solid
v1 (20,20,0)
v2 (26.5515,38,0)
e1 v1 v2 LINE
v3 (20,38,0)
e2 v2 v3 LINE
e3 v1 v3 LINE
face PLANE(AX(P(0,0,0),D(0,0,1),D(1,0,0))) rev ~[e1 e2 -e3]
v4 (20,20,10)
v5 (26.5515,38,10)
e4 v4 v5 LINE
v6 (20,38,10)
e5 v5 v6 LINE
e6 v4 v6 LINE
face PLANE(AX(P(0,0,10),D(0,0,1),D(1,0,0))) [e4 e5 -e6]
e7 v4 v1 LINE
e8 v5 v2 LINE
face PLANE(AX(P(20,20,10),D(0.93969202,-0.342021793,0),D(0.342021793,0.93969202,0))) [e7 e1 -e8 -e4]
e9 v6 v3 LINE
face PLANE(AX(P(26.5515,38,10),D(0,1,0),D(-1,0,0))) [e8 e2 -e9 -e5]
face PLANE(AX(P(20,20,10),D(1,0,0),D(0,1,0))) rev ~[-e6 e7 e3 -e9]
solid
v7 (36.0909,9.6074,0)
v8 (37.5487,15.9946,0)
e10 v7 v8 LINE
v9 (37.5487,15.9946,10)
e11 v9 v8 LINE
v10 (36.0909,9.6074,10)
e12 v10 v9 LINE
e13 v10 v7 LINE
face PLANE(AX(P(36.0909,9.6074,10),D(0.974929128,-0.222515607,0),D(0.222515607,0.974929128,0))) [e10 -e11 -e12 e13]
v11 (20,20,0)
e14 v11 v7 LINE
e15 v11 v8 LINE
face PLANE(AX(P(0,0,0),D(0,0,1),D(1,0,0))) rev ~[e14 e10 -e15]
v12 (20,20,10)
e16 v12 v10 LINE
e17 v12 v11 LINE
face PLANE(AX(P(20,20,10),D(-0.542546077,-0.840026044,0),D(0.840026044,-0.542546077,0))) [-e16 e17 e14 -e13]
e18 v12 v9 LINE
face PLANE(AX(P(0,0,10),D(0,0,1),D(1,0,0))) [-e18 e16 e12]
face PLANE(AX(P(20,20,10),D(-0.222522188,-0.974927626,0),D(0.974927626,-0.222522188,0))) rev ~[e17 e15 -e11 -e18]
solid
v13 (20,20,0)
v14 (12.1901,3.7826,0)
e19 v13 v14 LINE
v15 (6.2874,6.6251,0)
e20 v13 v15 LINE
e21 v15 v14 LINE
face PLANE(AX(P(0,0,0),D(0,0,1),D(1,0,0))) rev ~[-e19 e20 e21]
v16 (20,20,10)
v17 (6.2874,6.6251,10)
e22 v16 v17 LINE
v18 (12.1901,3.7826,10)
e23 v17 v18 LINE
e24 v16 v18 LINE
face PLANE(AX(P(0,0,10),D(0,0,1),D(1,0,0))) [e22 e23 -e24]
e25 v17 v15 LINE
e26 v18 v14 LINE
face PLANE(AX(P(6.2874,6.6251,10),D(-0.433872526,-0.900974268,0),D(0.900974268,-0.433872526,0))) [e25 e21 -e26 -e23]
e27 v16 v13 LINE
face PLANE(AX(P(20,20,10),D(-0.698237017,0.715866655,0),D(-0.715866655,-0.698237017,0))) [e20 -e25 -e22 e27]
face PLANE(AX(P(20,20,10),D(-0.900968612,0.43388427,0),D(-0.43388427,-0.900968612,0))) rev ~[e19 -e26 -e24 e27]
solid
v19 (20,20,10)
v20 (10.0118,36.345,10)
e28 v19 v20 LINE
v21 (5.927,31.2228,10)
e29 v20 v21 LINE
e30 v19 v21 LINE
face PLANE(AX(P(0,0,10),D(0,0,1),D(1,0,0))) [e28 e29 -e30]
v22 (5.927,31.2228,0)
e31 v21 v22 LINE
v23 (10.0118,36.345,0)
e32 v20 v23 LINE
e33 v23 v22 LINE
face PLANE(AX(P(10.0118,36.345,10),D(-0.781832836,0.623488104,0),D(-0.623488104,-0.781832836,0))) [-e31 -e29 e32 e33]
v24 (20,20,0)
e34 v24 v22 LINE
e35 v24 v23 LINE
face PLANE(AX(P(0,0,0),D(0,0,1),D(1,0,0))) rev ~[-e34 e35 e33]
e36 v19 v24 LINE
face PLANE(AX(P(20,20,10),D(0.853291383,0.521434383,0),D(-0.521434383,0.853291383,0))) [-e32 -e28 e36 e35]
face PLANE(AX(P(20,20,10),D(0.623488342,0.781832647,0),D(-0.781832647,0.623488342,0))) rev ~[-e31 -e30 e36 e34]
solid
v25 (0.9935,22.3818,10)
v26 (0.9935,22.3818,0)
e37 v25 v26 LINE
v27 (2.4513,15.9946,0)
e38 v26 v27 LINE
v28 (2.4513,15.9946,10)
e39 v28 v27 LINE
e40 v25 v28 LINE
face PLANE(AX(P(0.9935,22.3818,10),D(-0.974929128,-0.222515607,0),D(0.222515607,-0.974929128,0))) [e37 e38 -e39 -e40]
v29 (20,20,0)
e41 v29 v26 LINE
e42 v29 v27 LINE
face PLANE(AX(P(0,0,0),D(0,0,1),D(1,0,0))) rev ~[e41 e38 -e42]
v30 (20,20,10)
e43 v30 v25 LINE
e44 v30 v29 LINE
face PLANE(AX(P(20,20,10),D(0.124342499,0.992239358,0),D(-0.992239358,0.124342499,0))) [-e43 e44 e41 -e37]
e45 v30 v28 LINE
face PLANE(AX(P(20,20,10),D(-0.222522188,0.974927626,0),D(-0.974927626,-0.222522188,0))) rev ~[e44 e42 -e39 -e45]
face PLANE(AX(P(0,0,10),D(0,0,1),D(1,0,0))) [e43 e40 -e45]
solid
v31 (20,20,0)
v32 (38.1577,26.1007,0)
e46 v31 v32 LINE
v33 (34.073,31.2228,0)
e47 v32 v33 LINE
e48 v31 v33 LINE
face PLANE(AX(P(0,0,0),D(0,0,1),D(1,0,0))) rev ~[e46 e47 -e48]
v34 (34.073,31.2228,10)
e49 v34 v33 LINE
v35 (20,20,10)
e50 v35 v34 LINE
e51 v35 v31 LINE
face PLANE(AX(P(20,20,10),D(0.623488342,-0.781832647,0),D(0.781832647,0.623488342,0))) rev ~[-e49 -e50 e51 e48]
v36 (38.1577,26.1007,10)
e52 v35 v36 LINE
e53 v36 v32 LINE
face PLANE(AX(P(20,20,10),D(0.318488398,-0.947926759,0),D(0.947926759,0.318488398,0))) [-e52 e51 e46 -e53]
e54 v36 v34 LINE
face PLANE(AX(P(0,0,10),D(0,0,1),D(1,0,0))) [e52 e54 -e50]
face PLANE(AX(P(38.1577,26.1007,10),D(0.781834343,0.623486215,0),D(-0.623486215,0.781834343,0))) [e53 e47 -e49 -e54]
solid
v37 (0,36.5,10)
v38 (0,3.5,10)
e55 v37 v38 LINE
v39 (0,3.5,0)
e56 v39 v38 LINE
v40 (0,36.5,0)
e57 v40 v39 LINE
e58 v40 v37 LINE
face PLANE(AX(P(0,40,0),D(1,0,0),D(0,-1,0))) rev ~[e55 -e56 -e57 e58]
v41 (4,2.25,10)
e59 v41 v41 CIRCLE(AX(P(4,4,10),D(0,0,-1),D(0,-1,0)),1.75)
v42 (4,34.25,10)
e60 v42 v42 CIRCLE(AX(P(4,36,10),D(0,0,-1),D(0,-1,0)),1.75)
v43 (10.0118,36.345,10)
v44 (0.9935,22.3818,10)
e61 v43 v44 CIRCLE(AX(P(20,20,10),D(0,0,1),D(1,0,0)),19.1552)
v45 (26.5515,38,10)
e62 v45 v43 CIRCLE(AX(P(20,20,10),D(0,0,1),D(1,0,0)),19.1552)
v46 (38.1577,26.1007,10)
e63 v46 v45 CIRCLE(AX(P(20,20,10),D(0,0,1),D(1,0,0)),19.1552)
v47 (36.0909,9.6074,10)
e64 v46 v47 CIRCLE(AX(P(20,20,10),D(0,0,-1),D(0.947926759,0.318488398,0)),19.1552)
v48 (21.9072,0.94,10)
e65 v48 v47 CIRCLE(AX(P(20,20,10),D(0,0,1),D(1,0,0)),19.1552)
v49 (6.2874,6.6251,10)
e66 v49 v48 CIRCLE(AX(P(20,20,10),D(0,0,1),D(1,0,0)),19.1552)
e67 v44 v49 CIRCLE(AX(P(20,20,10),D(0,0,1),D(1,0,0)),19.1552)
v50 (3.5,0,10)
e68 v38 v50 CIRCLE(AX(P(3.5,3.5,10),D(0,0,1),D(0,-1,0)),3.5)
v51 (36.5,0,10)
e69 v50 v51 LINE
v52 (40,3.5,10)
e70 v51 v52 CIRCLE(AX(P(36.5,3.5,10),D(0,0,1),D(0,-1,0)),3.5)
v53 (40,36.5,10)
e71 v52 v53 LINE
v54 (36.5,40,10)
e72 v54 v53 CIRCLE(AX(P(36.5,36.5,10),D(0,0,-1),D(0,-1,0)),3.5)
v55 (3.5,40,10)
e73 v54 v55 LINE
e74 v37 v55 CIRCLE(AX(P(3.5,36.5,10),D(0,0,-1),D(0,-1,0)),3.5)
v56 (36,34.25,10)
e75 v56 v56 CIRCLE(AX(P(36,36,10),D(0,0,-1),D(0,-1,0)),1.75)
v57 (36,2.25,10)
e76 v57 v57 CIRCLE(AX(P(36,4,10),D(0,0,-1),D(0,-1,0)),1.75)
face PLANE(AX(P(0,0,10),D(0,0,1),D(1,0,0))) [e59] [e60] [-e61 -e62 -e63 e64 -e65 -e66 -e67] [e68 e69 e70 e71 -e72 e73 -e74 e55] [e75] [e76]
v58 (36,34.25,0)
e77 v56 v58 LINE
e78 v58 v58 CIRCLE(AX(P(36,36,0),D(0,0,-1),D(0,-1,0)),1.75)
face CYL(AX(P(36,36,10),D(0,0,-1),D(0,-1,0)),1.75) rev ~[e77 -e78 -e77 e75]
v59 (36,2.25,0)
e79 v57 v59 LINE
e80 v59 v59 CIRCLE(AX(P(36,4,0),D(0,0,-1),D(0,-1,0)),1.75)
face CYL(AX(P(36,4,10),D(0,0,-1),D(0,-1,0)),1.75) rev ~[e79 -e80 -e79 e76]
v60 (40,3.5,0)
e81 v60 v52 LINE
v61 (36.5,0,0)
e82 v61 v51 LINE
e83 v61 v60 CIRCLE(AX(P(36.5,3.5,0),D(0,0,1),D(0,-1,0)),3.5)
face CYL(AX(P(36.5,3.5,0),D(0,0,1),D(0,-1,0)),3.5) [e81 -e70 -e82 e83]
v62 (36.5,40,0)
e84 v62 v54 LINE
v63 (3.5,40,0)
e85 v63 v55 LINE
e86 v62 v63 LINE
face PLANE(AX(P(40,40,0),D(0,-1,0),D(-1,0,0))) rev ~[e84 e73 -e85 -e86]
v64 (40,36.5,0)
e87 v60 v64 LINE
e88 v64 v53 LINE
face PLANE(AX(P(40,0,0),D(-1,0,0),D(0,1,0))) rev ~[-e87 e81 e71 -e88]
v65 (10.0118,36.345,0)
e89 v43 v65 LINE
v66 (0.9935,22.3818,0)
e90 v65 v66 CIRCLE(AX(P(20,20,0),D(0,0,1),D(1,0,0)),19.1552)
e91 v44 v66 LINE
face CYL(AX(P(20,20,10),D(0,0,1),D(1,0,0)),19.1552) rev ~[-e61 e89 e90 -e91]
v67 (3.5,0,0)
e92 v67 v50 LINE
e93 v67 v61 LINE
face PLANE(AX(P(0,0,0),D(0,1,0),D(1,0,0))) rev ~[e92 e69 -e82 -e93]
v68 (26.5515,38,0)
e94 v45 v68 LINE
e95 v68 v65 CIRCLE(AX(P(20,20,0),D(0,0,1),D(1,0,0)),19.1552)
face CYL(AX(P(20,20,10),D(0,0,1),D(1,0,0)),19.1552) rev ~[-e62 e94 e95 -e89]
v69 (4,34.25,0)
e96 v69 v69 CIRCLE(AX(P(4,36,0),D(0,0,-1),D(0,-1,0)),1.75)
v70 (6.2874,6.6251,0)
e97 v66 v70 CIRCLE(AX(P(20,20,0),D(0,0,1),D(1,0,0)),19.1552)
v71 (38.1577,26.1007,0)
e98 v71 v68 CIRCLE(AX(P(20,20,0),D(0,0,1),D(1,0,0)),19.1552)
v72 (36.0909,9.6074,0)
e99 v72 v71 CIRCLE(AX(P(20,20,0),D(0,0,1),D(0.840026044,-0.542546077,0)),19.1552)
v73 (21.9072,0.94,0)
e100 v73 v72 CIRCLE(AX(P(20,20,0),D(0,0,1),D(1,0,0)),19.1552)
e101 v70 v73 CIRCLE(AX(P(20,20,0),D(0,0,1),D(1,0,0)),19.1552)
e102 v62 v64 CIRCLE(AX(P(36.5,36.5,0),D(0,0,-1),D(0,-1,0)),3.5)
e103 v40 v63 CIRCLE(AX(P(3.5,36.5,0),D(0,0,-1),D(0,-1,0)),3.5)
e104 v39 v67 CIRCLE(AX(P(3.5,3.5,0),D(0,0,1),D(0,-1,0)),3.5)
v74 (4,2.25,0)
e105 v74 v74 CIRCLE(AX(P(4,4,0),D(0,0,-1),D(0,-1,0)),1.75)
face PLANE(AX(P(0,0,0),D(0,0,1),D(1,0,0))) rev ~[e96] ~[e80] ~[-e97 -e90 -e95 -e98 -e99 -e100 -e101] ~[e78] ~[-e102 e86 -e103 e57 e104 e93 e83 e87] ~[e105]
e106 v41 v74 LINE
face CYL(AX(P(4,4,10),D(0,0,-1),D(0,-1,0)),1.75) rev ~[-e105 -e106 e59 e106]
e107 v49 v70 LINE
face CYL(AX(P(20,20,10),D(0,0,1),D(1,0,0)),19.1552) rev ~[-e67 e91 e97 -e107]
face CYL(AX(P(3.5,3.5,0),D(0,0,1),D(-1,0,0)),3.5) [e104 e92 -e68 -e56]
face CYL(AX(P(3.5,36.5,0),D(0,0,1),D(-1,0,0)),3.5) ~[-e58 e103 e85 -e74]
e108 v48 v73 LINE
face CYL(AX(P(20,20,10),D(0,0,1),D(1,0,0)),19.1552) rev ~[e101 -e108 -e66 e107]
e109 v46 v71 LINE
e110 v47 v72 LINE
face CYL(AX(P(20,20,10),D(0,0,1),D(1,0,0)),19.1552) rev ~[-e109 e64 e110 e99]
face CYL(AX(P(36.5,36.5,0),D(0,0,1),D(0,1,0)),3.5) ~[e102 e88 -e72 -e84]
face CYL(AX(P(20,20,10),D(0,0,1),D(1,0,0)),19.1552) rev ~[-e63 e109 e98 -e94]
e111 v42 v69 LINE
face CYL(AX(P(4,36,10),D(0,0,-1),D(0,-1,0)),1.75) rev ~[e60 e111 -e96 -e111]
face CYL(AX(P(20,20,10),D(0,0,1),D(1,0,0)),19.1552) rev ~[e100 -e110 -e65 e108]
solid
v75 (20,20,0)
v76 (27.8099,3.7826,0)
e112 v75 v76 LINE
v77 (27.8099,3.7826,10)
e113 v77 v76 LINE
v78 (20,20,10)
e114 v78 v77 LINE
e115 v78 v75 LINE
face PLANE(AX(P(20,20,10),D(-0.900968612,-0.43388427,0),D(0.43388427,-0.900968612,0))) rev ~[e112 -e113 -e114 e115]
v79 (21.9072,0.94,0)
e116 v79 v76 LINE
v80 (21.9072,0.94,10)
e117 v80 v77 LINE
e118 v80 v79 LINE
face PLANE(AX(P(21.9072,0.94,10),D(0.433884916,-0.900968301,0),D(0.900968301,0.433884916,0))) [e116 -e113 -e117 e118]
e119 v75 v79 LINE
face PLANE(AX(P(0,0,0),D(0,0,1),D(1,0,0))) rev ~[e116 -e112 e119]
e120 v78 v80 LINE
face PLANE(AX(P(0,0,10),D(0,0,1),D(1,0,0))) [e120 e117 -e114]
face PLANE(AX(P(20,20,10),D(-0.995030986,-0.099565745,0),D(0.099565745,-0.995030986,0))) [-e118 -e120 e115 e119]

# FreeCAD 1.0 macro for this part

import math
import FreeCAD as App
import Part
import Sketcher

V = App.Vector
Q = App.Units.Quantity


def edges_at(feature, points):
    """Names of the edges that pass closest to the given points."""
    edges = feature.Shape.Edges
    near = lambda p: min(range(len(edges)), key=lambda i: edges[i].distToShape(Part.Vertex(*p))[0])
    return sorted({f"Edge{near(p) + 1}" for p in points})

doc = App.newDocument("Part")
body = doc.addObject("PartDesign::Body", "Body")
body.AllowCompound = True

# Sketch on XY plane
sketch1 = body.newObject("Sketcher::SketchObject", "Sketch")
sketch1.AttachmentSupport = (doc.getObject("XY_Plane"), [""])
sketch1.MapMode = "FlatFace"
sketch1.addGeometry([
    Part.LineSegment(V(0, 40, 0), V(0, 0, 0)),
    Part.LineSegment(V(0, 0, 0), V(40, 0, 0)),
    Part.LineSegment(V(40, 0, 0), V(40, 40, 0)),
    Part.LineSegment(V(40, 40, 0), V(0, 40, 0)),
], False)
sketch1.addConstraint([
    Sketcher.Constraint("Coincident", 0, 2, 1, 1),
    Sketcher.Constraint("Coincident", 1, 2, 2, 1),
    Sketcher.Constraint("Coincident", 2, 2, 3, 1),
    Sketcher.Constraint("Coincident", 3, 2, 0, 1),
    Sketcher.Constraint("Vertical", 0),
    Sketcher.Constraint("Horizontal", 1),
    Sketcher.Constraint("Vertical", 2),
    Sketcher.Constraint("Horizontal", 3),
    Sketcher.Constraint("Coincident", 0, 2, -1, 1),
    Sketcher.Constraint("Equal", 3, 0),
    Sketcher.Constraint("DistanceX", 1, 1, 1, 2, Q("40 mm")),
])
pad1 = body.newObject("PartDesign::Pad", "Pad")
pad1.Profile = sketch1
pad1.Length = 10

# Sketch on XY plane
sketch2 = body.newObject("Sketcher::SketchObject", "Sketch001")
sketch2.AttachmentSupport = (doc.getObject("XY_Plane"), [""])
sketch2.MapMode = "FlatFace"
sketch2.AttachmentOffset = App.Placement(V(0, 0, 10), App.Rotation())
sketch2.addGeometry(Part.Circle(V(4, 36, 0), V(0, 0, 1), 1.8), False)
sketch2.addConstraint([
    Sketcher.Constraint("Diameter", 0, Q("3.5 mm")),
    Sketcher.Constraint("DistanceX", -1, 1, 0, 3, Q("4 mm")),
    Sketcher.Constraint("DistanceY", -1, 1, 0, 3, Q("36 mm")),
])
doc.recompute()
hole = body.newObject("PartDesign::Hole", "Hole")
hole.Profile = sketch2
hole.ThreadType = "None"
hole.Diameter = 3.5
hole.DepthType = "ThroughAll"

# Sketch on XY plane
sketch3 = body.newObject("Sketcher::SketchObject", "Sketch002")
sketch3.AttachmentSupport = (doc.getObject("XY_Plane"), [""])
sketch3.MapMode = "FlatFace"
sketch3.AttachmentOffset = App.Placement(V(0, 0, 10), App.Rotation())
sketch3.addGeometry(Part.Circle(V(4, 4, 0), V(0, 0, 1), 1.8), False)
sketch3.addConstraint([
    Sketcher.Constraint("Diameter", 0, Q("3.5 mm")),
    Sketcher.Constraint("DistanceX", -1, 1, 0, 3, Q("4 mm")),
    Sketcher.Constraint("DistanceY", -1, 1, 0, 3, Q("4 mm")),
])
doc.recompute()
hole2 = body.newObject("PartDesign::Hole", "Hole001")
hole2.Profile = sketch3
hole2.ThreadType = "None"
hole2.Diameter = 3.5
hole2.DepthType = "ThroughAll"

# Sketch on XY plane
sketch4 = body.newObject("Sketcher::SketchObject", "Sketch003")
sketch4.AttachmentSupport = (doc.getObject("XY_Plane"), [""])
sketch4.MapMode = "FlatFace"
sketch4.AttachmentOffset = App.Placement(V(0, 0, 10), App.Rotation())
sketch4.addGeometry(Part.Circle(V(36, 4, 0), V(0, 0, 1), 1.8), False)
sketch4.addConstraint([
    Sketcher.Constraint("Diameter", 0, Q("3.5 mm")),
    Sketcher.Constraint("DistanceX", -1, 1, 0, 3, Q("36 mm")),
    Sketcher.Constraint("DistanceY", -1, 1, 0, 3, Q("4 mm")),
])
doc.recompute()
hole3 = body.newObject("PartDesign::Hole", "Hole002")
hole3.Profile = sketch4
hole3.ThreadType = "None"
hole3.Diameter = 3.5
hole3.DepthType = "ThroughAll"

# Sketch on XY plane
sketch5 = body.newObject("Sketcher::SketchObject", "Sketch004")
sketch5.AttachmentSupport = (doc.getObject("XY_Plane"), [""])
sketch5.MapMode = "FlatFace"
sketch5.AttachmentOffset = App.Placement(V(0, 0, 10), App.Rotation())
sketch5.addGeometry(Part.Circle(V(36, 36, 0), V(0, 0, 1), 1.8), False)
sketch5.addConstraint([
    Sketcher.Constraint("Diameter", 0, Q("3.5 mm")),
    Sketcher.Constraint("DistanceX", -1, 1, 0, 3, Q("36 mm")),
    Sketcher.Constraint("DistanceY", -1, 1, 0, 3, Q("36 mm")),
])
doc.recompute()
hole4 = body.newObject("PartDesign::Hole", "Hole003")
hole4.Profile = sketch5
hole4.ThreadType = "None"
hole4.Diameter = 3.5
hole4.DepthType = "ThroughAll"
doc.recompute()

fillet = body.newObject("PartDesign::Fillet", "Fillet")
fillet.Base = (hole4, edges_at(hole4, [
    (40, 0, 5),
    (0, 0, 5),
    (0, 40, 5),
    (40, 40, 5),
]))
fillet.Radius = 3.5

# Sketch on XY plane
sketch6 = body.newObject("Sketcher::SketchObject", "Sketch005")
sketch6.AttachmentSupport = (doc.getObject("XY_Plane"), [""])
sketch6.MapMode = "FlatFace"
sketch6.AttachmentOffset = App.Placement(V(0, 0, 10), App.Rotation())
sketch6.addGeometry([
    Part.LineSegment(V(10, 36, 0), V(20, 20, 0)),  # 0
    Part.LineSegment(V(20, 20, 0), V(20, 38, 0)),  # 1
    Part.LineSegment(V(20, 38, 0), V(27, 38, 0)),  # 2
    Part.ArcOfCircle(Part.Circle(V(20, 20, 0), V(0, 0, 1), 19), math.radians(70), math.radians(121)),  # 3
    Part.LineSegment(V(1, 22, 0), V(20, 20, 0)),  # 4
    Part.LineSegment(V(20, 20, 0), V(6, 31, 0)),  # 5
    Part.LineSegment(V(6, 31, 0), V(10, 36, 0)),  # 6
    Part.ArcOfCircle(Part.Circle(V(20, 20, 0), V(0, 0, 1), 19), math.radians(121), math.radians(173)),  # 7
    Part.LineSegment(V(6, 7, 0), V(20, 20, 0)),  # 8
    Part.LineSegment(V(20, 20, 0), V(2, 16, 0)),  # 9
    Part.LineSegment(V(2, 16, 0), V(1, 22, 0)),  # 10
    Part.ArcOfCircle(Part.Circle(V(20, 20, 0), V(0, 0, 1), 19), math.radians(173), math.radians(224)),  # 11
    Part.LineSegment(V(22, 1, 0), V(20, 20, 0)),  # 12
    Part.LineSegment(V(20, 20, 0), V(12, 4, 0)),  # 13
    Part.LineSegment(V(12, 4, 0), V(6, 7, 0)),  # 14
    Part.ArcOfCircle(Part.Circle(V(20, 20, 0), V(0, 0, 1), 19), math.radians(-136), math.radians(-84)),  # 15
    Part.LineSegment(V(36, 10, 0), V(20, 20, 0)),  # 16
    Part.LineSegment(V(20, 20, 0), V(28, 4, 0)),  # 17
    Part.LineSegment(V(28, 4, 0), V(22, 1, 0)),  # 18
    Part.ArcOfCircle(Part.Circle(V(20, 20, 0), V(0, 0, 1), 19), math.radians(-84), math.radians(-33)),  # 19
    Part.LineSegment(V(38, 26, 0), V(20, 20, 0)),  # 20
    Part.LineSegment(V(20, 20, 0), V(38, 16, 0)),  # 21
    Part.LineSegment(V(38, 16, 0), V(36, 10, 0)),  # 22
    Part.ArcOfCircle(Part.Circle(V(20, 20, 0), V(0, 0, 1), 19), math.radians(-33), math.radians(19)),  # 23
    Part.LineSegment(V(27, 38, 0), V(20, 20, 0)),  # 24
    Part.LineSegment(V(20, 20, 0), V(34, 31, 0)),  # 25
    Part.LineSegment(V(34, 31, 0), V(38, 26, 0)),  # 26
    Part.ArcOfCircle(Part.Circle(V(20, 20, 0), V(0, 0, 1), 19), math.radians(19), math.radians(70)),  # 27
], False)
sketch6.addConstraint([
    Sketcher.Constraint("Coincident", 0, 2, 1, 1),
    Sketcher.Constraint("Coincident", 1, 2, 2, 1),
    Sketcher.Constraint("Coincident", 2, 2, 3, 1),
    Sketcher.Constraint("Coincident", 3, 2, 0, 1),
    Sketcher.Constraint("Coincident", 4, 2, 5, 1),
    Sketcher.Constraint("Coincident", 5, 2, 6, 1),
    Sketcher.Constraint("Coincident", 6, 2, 7, 1),
    Sketcher.Constraint("Coincident", 7, 2, 4, 1),
    Sketcher.Constraint("Coincident", 8, 2, 9, 1),
    Sketcher.Constraint("Coincident", 9, 2, 10, 1),
    Sketcher.Constraint("Coincident", 10, 2, 11, 1),
    Sketcher.Constraint("Coincident", 11, 2, 8, 1),
    Sketcher.Constraint("Coincident", 12, 2, 13, 1),
    Sketcher.Constraint("Coincident", 13, 2, 14, 1),
    Sketcher.Constraint("Coincident", 14, 2, 15, 1),
    Sketcher.Constraint("Coincident", 15, 2, 12, 1),
    Sketcher.Constraint("Coincident", 16, 2, 17, 1),
    Sketcher.Constraint("Coincident", 17, 2, 18, 1),
    Sketcher.Constraint("Coincident", 18, 2, 19, 1),
    Sketcher.Constraint("Coincident", 19, 2, 16, 1),
    Sketcher.Constraint("Coincident", 20, 2, 21, 1),
    Sketcher.Constraint("Coincident", 21, 2, 22, 1),
    Sketcher.Constraint("Coincident", 22, 2, 23, 1),
    Sketcher.Constraint("Coincident", 23, 2, 20, 1),
    Sketcher.Constraint("Coincident", 24, 2, 25, 1),
    Sketcher.Constraint("Coincident", 25, 2, 26, 1),
    Sketcher.Constraint("Coincident", 26, 2, 27, 1),
    Sketcher.Constraint("Coincident", 27, 2, 24, 1),
    Sketcher.Constraint("Vertical", 1),
    Sketcher.Constraint("Horizontal", 2),
    Sketcher.Constraint("Coincident", 7, 3, 3, 3),
    Sketcher.Constraint("Coincident", 11, 3, 3, 3),
    Sketcher.Constraint("Coincident", 15, 3, 3, 3),
    Sketcher.Constraint("Coincident", 19, 3, 3, 3),
    Sketcher.Constraint("Coincident", 23, 3, 3, 3),
    Sketcher.Constraint("Coincident", 27, 3, 3, 3),
    Sketcher.Constraint("Coincident", 0, 2, 3, 3),
    Sketcher.Constraint("Coincident", 4, 2, 3, 3),
    Sketcher.Constraint("Coincident", 6, 2, 3, 2),
    Sketcher.Constraint("Coincident", 8, 2, 3, 3),
    Sketcher.Constraint("Coincident", 10, 2, 7, 2),
    Sketcher.Constraint("Coincident", 12, 2, 3, 3),
    Sketcher.Constraint("Coincident", 14, 2, 11, 2),
    Sketcher.Constraint("Coincident", 16, 2, 3, 3),
    Sketcher.Constraint("Coincident", 18, 2, 15, 2),
    Sketcher.Constraint("Coincident", 20, 2, 3, 3),
    Sketcher.Constraint("Coincident", 22, 2, 19, 2),
    Sketcher.Constraint("Coincident", 24, 2, 3, 3),
    Sketcher.Constraint("Coincident", 26, 2, 23, 2),
    Sketcher.Constraint("Perpendicular", 5, 6),
    Sketcher.Constraint("Perpendicular", 9, 10),
    Sketcher.Constraint("Perpendicular", 13, 14),
    Sketcher.Constraint("Perpendicular", 17, 18),
    Sketcher.Constraint("Perpendicular", 21, 22),
    Sketcher.Constraint("Perpendicular", 25, 26),
    Sketcher.Constraint("Horizontal", 13, 2, 17, 2),
    Sketcher.Constraint("Horizontal", 9, 2, 21, 2),
    Sketcher.Constraint("Horizontal", 5, 2, 25, 2),
    Sketcher.Constraint("Horizontal", 1, 2, 27, 2),
    Sketcher.Constraint("Equal", 5, 9),
    Sketcher.Constraint("Equal", 9, 13),
    Sketcher.Constraint("Equal", 13, 17),
    Sketcher.Constraint("Equal", 17, 21),
    Sketcher.Constraint("Equal", 21, 25),
    Sketcher.Constraint("DistanceY", 1, 1, 1, 2, Q("18 mm")),
    Sketcher.Constraint("Distance", 5, Q("18 mm")),
    Sketcher.Constraint("DistanceX", -1, 1, 3, 3, Q("20 mm")),
    Sketcher.Constraint("DistanceY", -1, 1, 3, 3, Q("20 mm")),
    Sketcher.Constraint("Angle", 24, Q("-110 deg")),
    Sketcher.Constraint("Angle", 26, Q("-51.4288 deg")),
    Sketcher.Constraint("DistanceX", -1, 1, 13, 2, Q("12.19 mm")),
    Sketcher.Constraint("DistanceX", -1, 1, 22, 2, Q("36.091 mm")),
])
pocket1 = body.newObject("PartDesign::Pocket", "Pocket")
pocket1.Profile = sketch6
pocket1.Length = 10

doc.recompute()
